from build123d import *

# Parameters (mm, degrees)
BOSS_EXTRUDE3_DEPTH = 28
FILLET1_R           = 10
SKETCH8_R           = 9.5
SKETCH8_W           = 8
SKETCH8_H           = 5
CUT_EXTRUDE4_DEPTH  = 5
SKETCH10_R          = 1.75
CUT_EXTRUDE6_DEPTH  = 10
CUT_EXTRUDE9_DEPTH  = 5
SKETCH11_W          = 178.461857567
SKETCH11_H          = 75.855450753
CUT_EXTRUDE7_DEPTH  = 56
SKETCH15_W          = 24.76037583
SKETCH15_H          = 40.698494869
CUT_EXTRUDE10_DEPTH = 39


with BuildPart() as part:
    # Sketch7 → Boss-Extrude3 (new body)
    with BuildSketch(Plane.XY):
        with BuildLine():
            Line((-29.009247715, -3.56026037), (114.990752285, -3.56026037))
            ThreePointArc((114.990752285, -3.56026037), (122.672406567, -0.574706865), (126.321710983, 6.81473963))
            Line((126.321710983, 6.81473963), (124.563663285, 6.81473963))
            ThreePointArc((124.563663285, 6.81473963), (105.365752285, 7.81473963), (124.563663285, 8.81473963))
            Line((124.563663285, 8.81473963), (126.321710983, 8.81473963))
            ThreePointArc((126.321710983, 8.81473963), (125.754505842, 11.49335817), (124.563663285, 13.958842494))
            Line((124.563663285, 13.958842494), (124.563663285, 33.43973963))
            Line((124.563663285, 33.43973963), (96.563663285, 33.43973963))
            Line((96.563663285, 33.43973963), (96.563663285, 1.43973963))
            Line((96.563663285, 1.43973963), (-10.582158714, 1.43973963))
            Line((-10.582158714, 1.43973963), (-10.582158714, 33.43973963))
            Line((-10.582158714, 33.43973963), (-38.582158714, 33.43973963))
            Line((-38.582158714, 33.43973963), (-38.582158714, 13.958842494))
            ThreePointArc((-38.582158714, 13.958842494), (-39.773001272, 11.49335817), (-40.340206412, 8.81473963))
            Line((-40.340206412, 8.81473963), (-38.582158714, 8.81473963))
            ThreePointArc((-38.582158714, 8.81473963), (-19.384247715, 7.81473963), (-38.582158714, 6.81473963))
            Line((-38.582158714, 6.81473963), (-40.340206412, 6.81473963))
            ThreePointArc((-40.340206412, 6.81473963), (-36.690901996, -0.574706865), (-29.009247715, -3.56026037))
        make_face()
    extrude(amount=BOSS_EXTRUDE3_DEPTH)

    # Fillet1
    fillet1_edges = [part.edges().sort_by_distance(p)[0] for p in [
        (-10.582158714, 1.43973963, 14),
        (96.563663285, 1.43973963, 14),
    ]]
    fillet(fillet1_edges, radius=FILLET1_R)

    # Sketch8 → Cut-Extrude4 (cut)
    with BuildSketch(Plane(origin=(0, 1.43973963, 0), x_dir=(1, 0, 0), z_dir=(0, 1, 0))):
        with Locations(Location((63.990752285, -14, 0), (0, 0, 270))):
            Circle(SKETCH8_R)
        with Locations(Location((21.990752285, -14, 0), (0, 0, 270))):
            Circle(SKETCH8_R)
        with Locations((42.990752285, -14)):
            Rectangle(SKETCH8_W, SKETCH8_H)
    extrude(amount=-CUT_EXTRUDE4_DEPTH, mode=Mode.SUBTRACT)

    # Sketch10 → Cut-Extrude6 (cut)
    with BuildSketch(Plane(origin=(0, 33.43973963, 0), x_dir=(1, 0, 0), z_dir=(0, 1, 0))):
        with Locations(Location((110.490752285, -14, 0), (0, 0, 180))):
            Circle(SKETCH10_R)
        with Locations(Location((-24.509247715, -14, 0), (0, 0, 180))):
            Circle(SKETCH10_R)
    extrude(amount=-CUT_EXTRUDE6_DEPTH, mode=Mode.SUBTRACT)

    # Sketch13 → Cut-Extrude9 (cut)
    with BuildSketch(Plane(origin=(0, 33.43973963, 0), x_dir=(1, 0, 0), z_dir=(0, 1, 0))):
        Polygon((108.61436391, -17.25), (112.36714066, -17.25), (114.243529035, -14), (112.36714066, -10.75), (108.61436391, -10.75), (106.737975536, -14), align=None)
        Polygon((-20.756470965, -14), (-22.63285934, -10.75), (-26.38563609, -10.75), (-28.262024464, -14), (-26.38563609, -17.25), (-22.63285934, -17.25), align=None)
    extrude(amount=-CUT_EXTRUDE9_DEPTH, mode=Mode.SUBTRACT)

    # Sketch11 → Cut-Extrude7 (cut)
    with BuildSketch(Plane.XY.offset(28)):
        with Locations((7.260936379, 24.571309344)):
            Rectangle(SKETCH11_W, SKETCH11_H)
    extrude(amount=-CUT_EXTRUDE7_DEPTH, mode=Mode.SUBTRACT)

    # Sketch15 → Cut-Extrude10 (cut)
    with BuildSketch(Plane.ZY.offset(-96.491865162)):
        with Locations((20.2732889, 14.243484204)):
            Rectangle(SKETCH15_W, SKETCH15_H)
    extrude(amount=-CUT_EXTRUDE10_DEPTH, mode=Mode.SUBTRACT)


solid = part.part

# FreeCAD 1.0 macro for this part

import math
import FreeCAD as App
import Part
import Sketcher
from FreeCAD import Vector
Q = App.Units.Quantity


def edges_at(feature, points):
    """Names of the edges that pass closest to the given points."""
    edges = feature.Shape.Edges
    near = lambda p: min(range(len(edges)), key=lambda i: edges[i].distToShape(Part.Vertex(*p))[0])
    return sorted({f"Edge{near(p) + 1}" for p in points})

doc = App.newDocument("Part")
params = doc.addObject("Spreadsheet::Sheet", "Params")
for row, (alias, value) in enumerate([
    ("sketch1_width", "144 mm"),
    ("sketch1_width2", "28 mm"),
    ("sketch1_height", "32 mm"),
    ("pad1_length", "28 mm"),
    ("fillet_radius", "10 mm"),
    ("sketch2_diameter", "19 mm"),
    ("sketch2_width", "8 mm"),
    ("sketch2_height", "5 mm"),
    ("pocket1_length", "5 mm"),
    ("sketch3_diameter", "3.5 mm"),
    ("pocket2_length", "10 mm"),
    ("pocket3_length", "5 mm"),
    ("pocket4_length", "56 mm"),
    ("pocket5_length", "39 mm"),
], start=1):
    params.set(f"A{row}", alias)
    params.set(f"B{row}", "=" + value)
    params.setAlias(f"B{row}", alias)

body = doc.addObject("PartDesign::Body", "Body")

sketch1 = doc.addObject("Sketcher::SketchObject", "Sketch")
body.addObject(sketch1)
sketch1.AttachmentSupport = (doc.XY_Plane, [""])
sketch1.MapMode = "FlatFace"
sketch1.addGeometry(Part.LineSegment(Vector(-29, -3.6, 0), Vector(115, -3.6, 0)), False)
sketch1.addGeometry(Part.ArcOfCircle(Part.Circle(Vector(115, 7.8, 0), Vector(0, 0, 1), 11.4), math.radians(-90), math.radians(-5)), False)
sketch1.addGeometry(Part.LineSegment(Vector(126.3, 6.8, 0), Vector(124.6, 6.8, 0)), False)
sketch1.addGeometry(Part.ArcOfCircle(Part.Circle(Vector(115, 7.8, 0), Vector(0, 0, 1), 9.6), math.radians(6), math.radians(354)), False)
sketch1.addGeometry(Part.LineSegment(Vector(124.6, 8.8, 0), Vector(126.3, 8.8, 0)), False)
sketch1.addGeometry(Part.ArcOfCircle(Part.Circle(Vector(115, 7.8, 0), Vector(0, 0, 1), 11.4), math.radians(5), math.radians(33)), False)
sketch1.addGeometry(Part.LineSegment(Vector(124.6, 14, 0), Vector(124.6, 33.4, 0)), False)
sketch1.addGeometry(Part.LineSegment(Vector(124.6, 33.4, 0), Vector(96.6, 33.4, 0)), False)
sketch1.addGeometry(Part.LineSegment(Vector(96.6, 33.4, 0), Vector(96.6, 1.4, 0)), False)
sketch1.addGeometry(Part.LineSegment(Vector(96.6, 1.4, 0), Vector(-10.6, 1.4, 0)), False)
sketch1.addGeometry(Part.LineSegment(Vector(-10.6, 1.4, 0), Vector(-10.6, 33.4, 0)), False)
sketch1.addGeometry(Part.LineSegment(Vector(-10.6, 33.4, 0), Vector(-38.6, 33.4, 0)), False)
sketch1.addGeometry(Part.LineSegment(Vector(-38.6, 33.4, 0), Vector(-38.6, 14, 0)), False)
sketch1.addGeometry(Part.ArcOfCircle(Part.Circle(Vector(-29, 7.8, 0), Vector(0, 0, 1), 11.4), math.radians(147), math.radians(175)), False)
sketch1.addGeometry(Part.LineSegment(Vector(-40.3, 8.8, 0), Vector(-38.6, 8.8, 0)), False)
sketch1.addGeometry(Part.ArcOfCircle(Part.Circle(Vector(-29, 7.8, 0), Vector(0, 0, 1), 9.6), math.radians(-174), math.radians(174)), False)
sketch1.addGeometry(Part.LineSegment(Vector(-38.6, 6.8, 0), Vector(-40.3, 6.8, 0)), False)
sketch1.addGeometry(Part.ArcOfCircle(Part.Circle(Vector(-29, 7.8, 0), Vector(0, 0, 1), 11.4), math.radians(-175), math.radians(-90)), False)
sketch1.addConstraint(Sketcher.Constraint("Tangent", 0, 2, 1, 1))
sketch1.addConstraint(Sketcher.Constraint("Coincident", 1, 2, 2, 1))
sketch1.addConstraint(Sketcher.Constraint("Coincident", 2, 2, 3, 2))
sketch1.addConstraint(Sketcher.Constraint("Coincident", 3, 1, 4, 1))
sketch1.addConstraint(Sketcher.Constraint("Coincident", 4, 2, 5, 1))
sketch1.addConstraint(Sketcher.Constraint("Coincident", 5, 2, 6, 1))
sketch1.addConstraint(Sketcher.Constraint("Coincident", 6, 2, 7, 1))
sketch1.addConstraint(Sketcher.Constraint("Coincident", 7, 2, 8, 1))
sketch1.addConstraint(Sketcher.Constraint("Coincident", 8, 2, 9, 1))
sketch1.addConstraint(Sketcher.Constraint("Coincident", 9, 2, 10, 1))
sketch1.addConstraint(Sketcher.Constraint("Coincident", 10, 2, 11, 1))
sketch1.addConstraint(Sketcher.Constraint("Coincident", 11, 2, 12, 1))
sketch1.addConstraint(Sketcher.Constraint("Coincident", 12, 2, 13, 1))
sketch1.addConstraint(Sketcher.Constraint("Coincident", 13, 2, 14, 1))
sketch1.addConstraint(Sketcher.Constraint("Coincident", 14, 2, 15, 2))
sketch1.addConstraint(Sketcher.Constraint("Coincident", 15, 1, 16, 1))
sketch1.addConstraint(Sketcher.Constraint("Coincident", 16, 2, 17, 1))
sketch1.addConstraint(Sketcher.Constraint("Tangent", 17, 2, 0, 1))
sketch1.addConstraint(Sketcher.Constraint("Horizontal", 0))
sketch1.addConstraint(Sketcher.Constraint("Horizontal", 2))
sketch1.addConstraint(Sketcher.Constraint("Horizontal", 4))
sketch1.addConstraint(Sketcher.Constraint("Vertical", 6))
sketch1.addConstraint(Sketcher.Constraint("Horizontal", 7))
sketch1.addConstraint(Sketcher.Constraint("Vertical", 8))
sketch1.addConstraint(Sketcher.Constraint("Horizontal", 9))
sketch1.addConstraint(Sketcher.Constraint("Vertical", 10))
sketch1.addConstraint(Sketcher.Constraint("Horizontal", 11))
sketch1.addConstraint(Sketcher.Constraint("Vertical", 12))
sketch1.addConstraint(Sketcher.Constraint("Horizontal", 14))
sketch1.addConstraint(Sketcher.Constraint("Horizontal", 16))
sketch1.addConstraint(Sketcher.Constraint("Coincident", 3, 3, 1, 3))
sketch1.addConstraint(Sketcher.Constraint("Coincident", 5, 3, 1, 3))
sketch1.addConstraint(Sketcher.Constraint("Coincident", 15, 3, 13, 3))
sketch1.addConstraint(Sketcher.Constraint("Coincident", 17, 3, 13, 3))
sketch1.addConstraint(Sketcher.Constraint("Equal", 1, 5))
sketch1.addConstraint(Sketcher.Constraint("Equal", 5, 13))
sketch1.addConstraint(Sketcher.Constraint("Equal", 3, 15))
sketch1.addConstraint(Sketcher.Constraint("Equal", 13, 17))
sketch1.addConstraint(Sketcher.Constraint("Horizontal", 7, 2, 10, 2))
sketch1.addConstraint(Sketcher.Constraint("Horizontal", 5, 2, 12, 2))
sketch1.addConstraint(Sketcher.Constraint("Horizontal", 4, 2, 13, 2))
sketch1.addConstraint(Sketcher.Constraint("Horizontal", 2, 2, 15, 1))
sketch1.addConstraint(Sketcher.Constraint("Vertical", 2, 2, 3, 1))
sketch1.addConstraint(Sketcher.Constraint("Vertical", 3, 1, 5, 2))
sketch1.addConstraint(Sketcher.Constraint("Equal", 7, 11))
sketch1.addConstraint(Sketcher.Constraint("DistanceX", 0, 1, 0, 2, 144.0))
sketch1.addConstraint(Sketcher.Constraint("DistanceX", 7, 2, 7, 1, 28.0))
sketch1.addConstraint(Sketcher.Constraint("DistanceY", 8, 2, 8, 1, 32.0))
sketch1.addConstraint(Sketcher.Constraint("Radius", 1, 11.375))
sketch1.addConstraint(Sketcher.Constraint("Radius", 3, 9.625))
sketch1.addConstraint(Sketcher.Constraint("DistanceY", 1, 2, 3, 3, 1.0))
sketch1.addConstraint(Sketcher.Constraint("DistanceY", 0, 2, 8, 2, 5.0))
sketch1.addConstraint(Sketcher.Constraint("DistanceY", -1, 1, 1, 3, 7.81474))
sketch1.addConstraint(Sketcher.Constraint("DistanceX", -1, 1, 1, 2, 126.321711))
sketch1.setExpression("Constraints[45]", "Params.sketch1_width")
sketch1.setExpression("Constraints[46]", "Params.sketch1_width2")
sketch1.setExpression("Constraints[47]", "Params.sketch1_height")
pad1 = doc.addObject("PartDesign::Pad", "Pad")
body.addObject(pad1)
pad1.Profile = sketch1
pad1.setExpression("Length", "Params.pad1_length")
doc.recompute()

fillet = doc.addObject("PartDesign::Fillet", "Fillet")
body.addObject(fillet)
fillet.Base = (pad1, edges_at(pad1, [(-10.582, 1.44, 14), (96.564, 1.44, 14)]))
fillet.setExpression("Radius", "Params.fillet_radius")

sketch2 = doc.addObject("Sketcher::SketchObject", "Sketch001")
body.addObject(sketch2)
sketch2.AttachmentSupport = (doc.XZ_Plane, [""])
sketch2.MapMode = "FlatFace"
sketch2.AttachmentOffset = App.Placement(Vector(0, 0, -1.43974), App.Rotation())
sketch2.addGeometry(Part.Circle(Vector(64, 14, 0), Vector(0, 0, 1), 10), False)
sketch2.addGeometry(Part.Circle(Vector(22, 14, 0), Vector(0, 0, 1), 10), False)
sketch2.addGeometry(Part.LineSegment(Vector(39, 12, 0), Vector(39, 16, 0)), False)
sketch2.addGeometry(Part.LineSegment(Vector(39, 16, 0), Vector(47, 16, 0)), False)
sketch2.addGeometry(Part.LineSegment(Vector(47, 16, 0), Vector(47, 12, 0)), False)
sketch2.addGeometry(Part.LineSegment(Vector(47, 12, 0), Vector(39, 12, 0)), False)
sketch2.addConstraint(Sketcher.Constraint("Coincident", 2, 2, 3, 1))
sketch2.addConstraint(Sketcher.Constraint("Coincident", 3, 2, 4, 1))
sketch2.addConstraint(Sketcher.Constraint("Coincident", 4, 2, 5, 1))
sketch2.addConstraint(Sketcher.Constraint("Coincident", 5, 2, 2, 1))
sketch2.addConstraint(Sketcher.Constraint("Vertical", 2))
sketch2.addConstraint(Sketcher.Constraint("Horizontal", 3))
sketch2.addConstraint(Sketcher.Constraint("Vertical", 4))
sketch2.addConstraint(Sketcher.Constraint("Horizontal", 5))
sketch2.addConstraint(Sketcher.Constraint("Equal", 0, 1))
sketch2.addConstraint(Sketcher.Constraint("Horizontal", 0, 3, 1, 3))
sketch2.addConstraint(Sketcher.Constraint("Diameter", 0, 19.0))
sketch2.addConstraint(Sketcher.Constraint("DistanceX", 3, 1, 3, 2, 8.0))
sketch2.addConstraint(Sketcher.Constraint("DistanceY", 2, 1, 2, 2, 5.0))
sketch2.addConstraint(Sketcher.Constraint("DistanceY", -1, 1, 0, 3, 14.0))
sketch2.addConstraint(Sketcher.Constraint("DistanceX", 1, 3, 0, 3, 42.0))
sketch2.addConstraint(Sketcher.Constraint("DistanceX", 1, 3, 2, 2, 17.0))
sketch2.addConstraint(Sketcher.Constraint("DistanceY", -1, 1, 2, 2, 16.5))
sketch2.addConstraint(Sketcher.Constraint("DistanceX", -1, 1, 0, 3, 63.990752))
sketch2.setExpression("Constraints[10]", "Params.sketch2_diameter")
sketch2.setExpression("Constraints[11]", "Params.sketch2_width")
sketch2.setExpression("Constraints[12]", "Params.sketch2_height")
pocket1 = doc.addObject("PartDesign::Pocket", "Pocket")
body.addObject(pocket1)
pocket1.Profile = sketch2
pocket1.setExpression("Length", "Params.pocket1_length")
pocket1.Reversed = True

sketch3 = doc.addObject("Sketcher::SketchObject", "Sketch002")
body.addObject(sketch3)
sketch3.AttachmentSupport = (doc.XZ_Plane, [""])
sketch3.MapMode = "FlatFace"
sketch3.AttachmentOffset = App.Placement(Vector(0, 0, -33.43974), App.Rotation())
sketch3.addGeometry(Part.Circle(Vector(110.5, 14, 0), Vector(0, 0, 1), 1.8), False)
sketch3.addGeometry(Part.Circle(Vector(-24.5, 14, 0), Vector(0, 0, 1), 1.8), False)
sketch3.addConstraint(Sketcher.Constraint("Equal", 0, 1))
sketch3.addConstraint(Sketcher.Constraint("Horizontal", 0, 3, 1, 3))
sketch3.addConstraint(Sketcher.Constraint("Diameter", 0, 3.5))
sketch3.addConstraint(Sketcher.Constraint("DistanceY", -1, 1, 0, 3, 14.0))
sketch3.addConstraint(Sketcher.Constraint("DistanceX", 1, 3, 0, 3, 135.0))
sketch3.addConstraint(Sketcher.Constraint("DistanceX", -1, 1, 0, 3, 110.490752))
sketch3.setExpression("Constraints[2]", "Params.sketch3_diameter")
pocket2 = doc.addObject("PartDesign::Pocket", "Pocket001")
body.addObject(pocket2)
pocket2.Profile = sketch3
pocket2.setExpression("Length", "Params.pocket2_length")
pocket2.Reversed = True

sketch4 = doc.addObject("Sketcher::SketchObject", "Sketch003")
body.addObject(sketch4)
sketch4.AttachmentSupport = (doc.XZ_Plane, [""])
sketch4.MapMode = "FlatFace"
sketch4.AttachmentOffset = App.Placement(Vector(0, 0, -33.43974), App.Rotation())
sketch4.addGeometry(Part.LineSegment(Vector(108.6, 17.2, 0), Vector(112.4, 17.2, 0)), False)
sketch4.addGeometry(Part.LineSegment(Vector(112.4, 17.2, 0), Vector(114.2, 14, 0)), False)
sketch4.addGeometry(Part.LineSegment(Vector(114.2, 14, 0), Vector(112.4, 10.8, 0)), False)
sketch4.addGeometry(Part.LineSegment(Vector(112.4, 10.8, 0), Vector(108.6, 10.8, 0)), False)
sketch4.addGeometry(Part.LineSegment(Vector(108.6, 10.8, 0), Vector(106.7, 14, 0)), False)
sketch4.addGeometry(Part.LineSegment(Vector(106.7, 14, 0), Vector(108.6, 17.2, 0)), False)
sketch4.addGeometry(Part.LineSegment(Vector(-20.8, 14, 0), Vector(-22.6, 10.8, 0)), False)
sketch4.addGeometry(Part.LineSegment(Vector(-22.6, 10.8, 0), Vector(-26.4, 10.8, 0)), False)
sketch4.addGeometry(Part.LineSegment(Vector(-26.4, 10.8, 0), Vector(-28.3, 14, 0)), False)
sketch4.addGeometry(Part.LineSegment(Vector(-28.3, 14, 0), Vector(-26.4, 17.2, 0)), False)
sketch4.addGeometry(Part.LineSegment(Vector(-26.4, 17.2, 0), Vector(-22.6, 17.2, 0)), False)
sketch4.addGeometry(Part.LineSegment(Vector(-22.6, 17.2, 0), Vector(-20.8, 14, 0)), False)
sketch4.addConstraint(Sketcher.Constraint("Coincident", 0, 2, 1, 1))
sketch4.addConstraint(Sketcher.Constraint("Coincident", 1, 2, 2, 1))
sketch4.addConstraint(Sketcher.Constraint("Coincident", 2, 2, 3, 1))
sketch4.addConstraint(Sketcher.Constraint("Coincident", 3, 2, 4, 1))
sketch4.addConstraint(Sketcher.Constraint("Coincident", 4, 2, 5, 1))
sketch4.addConstraint(Sketcher.Constraint("Coincident", 5, 2, 0, 1))
sketch4.addConstraint(Sketcher.Constraint("Coincident", 6, 2, 7, 1))
sketch4.addConstraint(Sketcher.Constraint("Coincident", 7, 2, 8, 1))
sketch4.addConstraint(Sketcher.Constraint("Coincident", 8, 2, 9, 1))
sketch4.addConstraint(Sketcher.Constraint("Coincident", 9, 2, 10, 1))
sketch4.addConstraint(Sketcher.Constraint("Coincident", 10, 2, 11, 1))
sketch4.addConstraint(Sketcher.Constraint("Coincident", 11, 2, 6, 1))
sketch4.addConstraint(Sketcher.Constraint("Horizontal", 0))
sketch4.addConstraint(Sketcher.Constraint("Horizontal", 3))
sketch4.addConstraint(Sketcher.Constraint("Horizontal", 7))
sketch4.addConstraint(Sketcher.Constraint("Horizontal", 10))
sketch4.addConstraint(Sketcher.Constraint("Parallel", 1, 4))
sketch4.addConstraint(Sketcher.Constraint("Parallel", 2, 5))
sketch4.addConstraint(Sketcher.Constraint("Parallel", 5, 6))
sketch4.addConstraint(Sketcher.Constraint("Parallel", 4, 8))
sketch4.addConstraint(Sketcher.Constraint("Parallel", 6, 9))
sketch4.addConstraint(Sketcher.Constraint("Parallel", 8, 11))
sketch4.addConstraint(Sketcher.Constraint("Horizontal", 1, 2, 4, 2))
sketch4.addConstraint(Sketcher.Constraint("Horizontal", 3, 2, 6, 2))
sketch4.addConstraint(Sketcher.Constraint("Horizontal", 4, 2, 8, 2))
sketch4.addConstraint(Sketcher.Constraint("Horizontal", 5, 2, 9, 2))
sketch4.addConstraint(Sketcher.Constraint("Horizontal", 8, 2, 11, 2))
sketch4.addConstraint(Sketcher.Constraint("Vertical", 0, 2, 2, 2))
sketch4.addConstraint(Sketcher.Constraint("Vertical", 3, 2, 5, 2))
sketch4.addConstraint(Sketcher.Constraint("Equal", 3, 7))
sketch4.addConstraint(Sketcher.Constraint("Angle", 1, Q("-60 deg")))
sketch4.addConstraint(Sketcher.Constraint("DistanceY", -1, 1, 1, 2, 14.0))
sketch4.addConstraint(Sketcher.Constraint("DistanceX", 6, 2, 2, 2, 135.0))
sketch4.addConstraint(Sketcher.Constraint("DistanceY", 2, 2, 0, 2, 6.5))
sketch4.addConstraint(Sketcher.Constraint("DistanceX", 0, 1, 0, 2, 3.752777))
sketch4.addConstraint(Sketcher.Constraint("DistanceX", -1, 1, 0, 2, 112.367141))
pocket3 = doc.addObject("PartDesign::Pocket", "Pocket002")
body.addObject(pocket3)
pocket3.Profile = sketch4
pocket3.setExpression("Length", "Params.pocket3_length")
pocket3.Reversed = True

sketch5 = doc.addObject("Sketcher::SketchObject", "Sketch004")
body.addObject(sketch5)
sketch5.AttachmentSupport = (doc.XY_Plane, [""])
sketch5.MapMode = "FlatFace"
sketch5.AttachmentOffset = App.Placement(Vector(0, 0, 28), App.Rotation())
sketch5.addGeometry(Part.LineSegment(Vector(-82, 62, 0), Vector(-82, -13, 0)), False)
sketch5.addGeometry(Part.LineSegment(Vector(-82, -13, 0), Vector(96, -13, 0)), False)
sketch5.addGeometry(Part.LineSegment(Vector(96, -13, 0), Vector(96, 62, 0)), False)
sketch5.addGeometry(Part.LineSegment(Vector(96, 62, 0), Vector(-82, 62, 0)), False)
sketch5.addConstraint(Sketcher.Constraint("Coincident", 0, 2, 1, 1))
sketch5.addConstraint(Sketcher.Constraint("Coincident", 1, 2, 2, 1))
sketch5.addConstraint(Sketcher.Constraint("Coincident", 2, 2, 3, 1))
sketch5.addConstraint(Sketcher.Constraint("Coincident", 3, 2, 0, 1))
sketch5.addConstraint(Sketcher.Constraint("Vertical", 0))
sketch5.addConstraint(Sketcher.Constraint("Horizontal", 1))
sketch5.addConstraint(Sketcher.Constraint("Vertical", 2))
sketch5.addConstraint(Sketcher.Constraint("Horizontal", 3))
sketch5.addConstraint(Sketcher.Constraint("DistanceY", 0, 2, 0, 1, 75.855451))
sketch5.addConstraint(Sketcher.Constraint("DistanceX", 1, 1, 1, 2, 178.461858))
sketch5.addConstraint(Sketcher.Constraint("DistanceX", 0, 2, -1, 1, 81.969992))
sketch5.addConstraint(Sketcher.Constraint("DistanceY", 0, 2, -1, 1, 13.356416))
pocket4 = doc.addObject("PartDesign::Pocket", "Pocket003")
body.addObject(pocket4)
pocket4.Profile = sketch5
pocket4.setExpression("Length", "Params.pocket4_length")

sketch6 = doc.addObject("Sketcher::SketchObject", "Sketch005")
body.addObject(sketch6)
sketch6.AttachmentSupport = (doc.YZ_Plane, [""])
sketch6.MapMode = "FlatFace"
sketch6.AttachmentOffset = App.Placement(Vector(0, 0, 96.491865), App.Rotation())
sketch6.addGeometry(Part.LineSegment(Vector(35, 8, 0), Vector(-6, 8, 0)), False)
sketch6.addGeometry(Part.LineSegment(Vector(-6, 8, 0), Vector(-6, 33, 0)), False)
sketch6.addGeometry(Part.LineSegment(Vector(-6, 33, 0), Vector(35, 33, 0)), False)
sketch6.addGeometry(Part.LineSegment(Vector(35, 33, 0), Vector(35, 8, 0)), False)
sketch6.addConstraint(Sketcher.Constraint("Coincident", 0, 2, 1, 1))
sketch6.addConstraint(Sketcher.Constraint("Coincident", 1, 2, 2, 1))
sketch6.addConstraint(Sketcher.Constraint("Coincident", 2, 2, 3, 1))
sketch6.addConstraint(Sketcher.Constraint("Coincident", 3, 2, 0, 1))
sketch6.addConstraint(Sketcher.Constraint("Horizontal", 0))
sketch6.addConstraint(Sketcher.Constraint("Vertical", 1))
sketch6.addConstraint(Sketcher.Constraint("Horizontal", 2))
sketch6.addConstraint(Sketcher.Constraint("Vertical", 3))
sketch6.addConstraint(Sketcher.Constraint("DistanceY", -1, 1, 0, 2, 7.893101))
sketch6.addConstraint(Sketcher.Constraint("DistanceX", 0, 2, 0, 1, 40.698495))
sketch6.addConstraint(Sketcher.Constraint("DistanceY", 1, 1, 1, 2, 24.760376))
sketch6.addConstraint(Sketcher.Constraint("DistanceX", -1, 1, 2, 2, 34.592732))
pocket5 = doc.addObject("PartDesign::Pocket", "Pocket004")
body.addObject(pocket5)
pocket5.Profile = sketch6
pocket5.setExpression("Length", "Params.pocket5_length")
pocket5.Reversed = True

doc.recompute()
